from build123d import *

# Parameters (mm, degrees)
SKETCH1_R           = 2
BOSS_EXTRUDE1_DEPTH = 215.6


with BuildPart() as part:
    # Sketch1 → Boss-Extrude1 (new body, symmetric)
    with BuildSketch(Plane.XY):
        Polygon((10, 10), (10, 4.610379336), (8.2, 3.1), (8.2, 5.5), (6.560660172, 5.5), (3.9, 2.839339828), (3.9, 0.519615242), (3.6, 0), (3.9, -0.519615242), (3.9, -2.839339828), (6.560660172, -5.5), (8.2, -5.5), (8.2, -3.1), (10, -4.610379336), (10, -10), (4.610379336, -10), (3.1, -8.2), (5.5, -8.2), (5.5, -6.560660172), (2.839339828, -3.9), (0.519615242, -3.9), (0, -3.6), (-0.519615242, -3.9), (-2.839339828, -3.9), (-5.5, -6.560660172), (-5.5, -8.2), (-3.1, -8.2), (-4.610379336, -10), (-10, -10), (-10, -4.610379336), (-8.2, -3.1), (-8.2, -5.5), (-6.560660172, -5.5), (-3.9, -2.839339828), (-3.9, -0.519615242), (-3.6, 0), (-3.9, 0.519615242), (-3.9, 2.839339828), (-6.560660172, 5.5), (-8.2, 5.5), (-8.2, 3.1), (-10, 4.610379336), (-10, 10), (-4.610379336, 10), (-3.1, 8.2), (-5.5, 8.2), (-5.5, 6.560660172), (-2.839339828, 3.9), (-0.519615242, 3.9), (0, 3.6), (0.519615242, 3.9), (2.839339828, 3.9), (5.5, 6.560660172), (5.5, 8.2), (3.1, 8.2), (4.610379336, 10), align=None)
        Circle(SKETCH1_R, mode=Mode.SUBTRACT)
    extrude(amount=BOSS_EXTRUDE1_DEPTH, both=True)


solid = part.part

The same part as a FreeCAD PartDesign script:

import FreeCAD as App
import Part
import Sketcher

V = App.Vector
Q = App.Units.Quantity

doc = App.newDocument("Part")
body = doc.addObject("PartDesign::Body", "Body")

sketch1 = doc.addObject("Sketcher::SketchObject", "Sketch")
body.addObject(sketch1)
sketch1.AttachmentSupport = (doc.XY_Plane, [""])
sketch1.MapMode = "FlatFace"
sketch1.addGeometry(Part.LineSegment(V(10, 4.6, 0), V(10, 10, 0)), False)
sketch1.addGeometry(Part.LineSegment(V(10, 10, 0), V(4.6, 10, 0)), False)
sketch1.addGeometry(Part.LineSegment(V(4.6, 10, 0), V(3.1, 8.2, 0)), False)
sketch1.addGeometry(Part.LineSegment(V(3.1, 8.2, 0), V(5.5, 8.2, 0)), False)
sketch1.addGeometry(Part.LineSegment(V(5.5, 8.2, 0), V(5.5, 6.6, 0)), False)
sketch1.addGeometry(Part.LineSegment(V(5.5, 6.6, 0), V(2.8, 3.9, 0)), False)
sketch1.addGeometry(Part.LineSegment(V(2.8, 3.9, 0), V(0.5, 3.9, 0)), False)
sketch1.addGeometry(Part.LineSegment(V(0.5, 3.9, 0), V(0, 3.6, 0)), False)
sketch1.addGeometry(Part.LineSegment(V(0, 3.6, 0), V(-0.5, 3.9, 0)), False)
sketch1.addGeometry(Part.LineSegment(V(-0.5, 3.9, 0), V(-2.8, 3.9, 0)), False)
sketch1.addGeometry(Part.LineSegment(V(-2.8, 3.9, 0), V(-5.5, 6.6, 0)), False)
sketch1.addGeometry(Part.LineSegment(V(-5.5, 6.6, 0), V(-5.5, 8.2, 0)), False)
sketch1.addGeometry(Part.LineSegment(V(-5.5, 8.2, 0), V(-3.1, 8.2, 0)), False)
sketch1.addGeometry(Part.LineSegment(V(-3.1, 8.2, 0), V(-4.6, 10, 0)), False)
sketch1.addGeometry(Part.LineSegment(V(-4.6, 10, 0), V(-10, 10, 0)), False)
sketch1.addGeometry(Part.LineSegment(V(-10, 10, 0), V(-10, 4.6, 0)), False)
sketch1.addGeometry(Part.LineSegment(V(-10, 4.6, 0), V(-8.2, 3.1, 0)), False)
sketch1.addGeometry(Part.LineSegment(V(-8.2, 3.1, 0), V(-8.2, 5.5, 0)), False)
sketch1.addGeometry(Part.LineSegment(V(-8.2, 5.5, 0), V(-6.6, 5.5, 0)), False)
sketch1.addGeometry(Part.LineSegment(V(-6.6, 5.5, 0), V(-3.9, 2.8, 0)), False)
sketch1.addGeometry(Part.LineSegment(V(-3.9, 2.8, 0), V(-3.9, 0.5, 0)), False)
sketch1.addGeometry(Part.LineSegment(V(-3.9, 0.5, 0), V(-3.6, 0, 0)), False)
sketch1.addGeometry(Part.LineSegment(V(-3.6, 0, 0), V(-3.9, -0.5, 0)), False)
sketch1.addGeometry(Part.LineSegment(V(-3.9, -0.5, 0), V(-3.9, -2.8, 0)), False)
sketch1.addGeometry(Part.LineSegment(V(-3.9, -2.8, 0), V(-6.6, -5.5, 0)), False)
sketch1.addGeometry(Part.LineSegment(V(-6.6, -5.5, 0), V(-8.2, -5.5, 0)), False)
sketch1.addGeometry(Part.LineSegment(V(-8.2, -5.5, 0), V(-8.2, -3.1, 0)), False)
sketch1.addGeometry(Part.LineSegment(V(-8.2, -3.1, 0), V(-10, -4.6, 0)), False)
sketch1.addGeometry(Part.LineSegment(V(-10, -4.6, 0), V(-10, -10, 0)), False)
sketch1.addGeometry(Part.LineSegment(V(-10, -10, 0), V(-4.6, -10, 0)), False)
sketch1.addGeometry(Part.LineSegment(V(-4.6, -10, 0), V(-3.1, -8.2, 0)), False)
sketch1.addGeometry(Part.LineSegment(V(-3.1, -8.2, 0), V(-5.5, -8.2, 0)), False)
sketch1.addGeometry(Part.LineSegment(V(-5.5, -8.2, 0), V(-5.5, -6.6, 0)), False)
sketch1.addGeometry(Part.LineSegment(V(-5.5, -6.6, 0), V(-2.8, -3.9, 0)), False)
sketch1.addGeometry(Part.LineSegment(V(-2.8, -3.9, 0), V(-0.5, -3.9, 0)), False)
sketch1.addGeometry(Part.LineSegment(V(-0.5, -3.9, 0), V(0, -3.6, 0)), False)
sketch1.addGeometry(Part.LineSegment(V(0, -3.6, 0), V(0.5, -3.9, 0)), False)
sketch1.addGeometry(Part.LineSegment(V(0.5, -3.9, 0), V(2.8, -3.9, 0)), False)
sketch1.addGeometry(Part.LineSegment(V(2.8, -3.9, 0), V(5.5, -6.6, 0)), False)
sketch1.addGeometry(Part.LineSegment(V(5.5, -6.6, 0), V(5.5, -8.2, 0)), False)
sketch1.addGeometry(Part.LineSegment(V(5.5, -8.2, 0), V(3.1, -8.2, 0)), False)
sketch1.addGeometry(Part.LineSegment(V(3.1, -8.2, 0), V(4.6, -10, 0)), False)
sketch1.addGeometry(Part.LineSegment(V(4.6, -10, 0), V(10, -10, 0)), False)
sketch1.addGeometry(Part.LineSegment(V(10, -10, 0), V(10, -4.6, 0)), False)
sketch1.addGeometry(Part.LineSegment(V(10, -4.6, 0), V(8.2, -3.1, 0)), False)
sketch1.addGeometry(Part.LineSegment(V(8.2, -3.1, 0), V(8.2, -5.5, 0)), False)
sketch1.addGeometry(Part.LineSegment(V(8.2, -5.5, 0), V(6.6, -5.5, 0)), False)
sketch1.addGeometry(Part.LineSegment(V(6.6, -5.5, 0), V(3.9, -2.8, 0)), False)
sketch1.addGeometry(Part.LineSegment(V(3.9, -2.8, 0), V(3.9, -0.5, 0)), False)
sketch1.addGeometry(Part.LineSegment(V(3.9, -0.5, 0), V(3.6, 0, 0)), False)
sketch1.addGeometry(Part.LineSegment(V(3.6, 0, 0), V(3.9, 0.5, 0)), False)
sketch1.addGeometry(Part.LineSegment(V(3.9, 0.5, 0), V(3.9, 2.8, 0)), False)
sketch1.addGeometry(Part.LineSegment(V(3.9, 2.8, 0), V(6.6, 5.5, 0)), False)
sketch1.addGeometry(Part.LineSegment(V(6.6, 5.5, 0), V(8.2, 5.5, 0)), False)
sketch1.addGeometry(Part.LineSegment(V(8.2, 5.5, 0), V(8.2, 3.1, 0)), False)
sketch1.addGeometry(Part.LineSegment(V(8.2, 3.1, 0), V(10, 4.6, 0)), False)
sketch1.addGeometry(Part.Circle(V(0, 0, 0), V(0, 0, 1), 2), False)
sketch1.addConstraint(Sketcher.Constraint("Coincident", 0, 2, 1, 1))
sketch1.addConstraint(Sketcher.Constraint("Coincident", 1, 2, 2, 1))
sketch1.addConstraint(Sketcher.Constraint("Coincident", 2, 2, 3, 1))
sketch1.addConstraint(Sketcher.Constraint("Coincident", 3, 2, 4, 1))
sketch1.addConstraint(Sketcher.Constraint("Coincident", 4, 2, 5, 1))
sketch1.addConstraint(Sketcher.Constraint("Coincident", 5, 2, 6, 1))
sketch1.addConstraint(Sketcher.Constraint("Coincident", 6, 2, 7, 1))
sketch1.addConstraint(Sketcher.Constraint("Coincident", 7, 2, 8, 1))
sketch1.addConstraint(Sketcher.Constraint("Coincident", 8, 2, 9, 1))
sketch1.addConstraint(Sketcher.Constraint("Coincident", 9, 2, 10, 1))
sketch1.addConstraint(Sketcher.Constraint("Coincident", 10, 2, 11, 1))
sketch1.addConstraint(Sketcher.Constraint("Coincident", 11, 2, 12, 1))
sketch1.addConstraint(Sketcher.Constraint("Coincident", 12, 2, 13, 1))
sketch1.addConstraint(Sketcher.Constraint("Coincident", 13, 2, 14, 1))
sketch1.addConstraint(Sketcher.Constraint("Coincident", 14, 2, 15, 1))
sketch1.addConstraint(Sketcher.Constraint("Coincident", 15, 2, 16, 1))
sketch1.addConstraint(Sketcher.Constraint("Coincident", 16, 2, 17, 1))
sketch1.addConstraint(Sketcher.Constraint("Coincident", 17, 2, 18, 1))
sketch1.addConstraint(Sketcher.Constraint("Coincident", 18, 2, 19, 1))
sketch1.addConstraint(Sketcher.Constraint("Coincident", 19, 2, 20, 1))
sketch1.addConstraint(Sketcher.Constraint("Coincident", 20, 2, 21, 1))
sketch1.addConstraint(Sketcher.Constraint("Coincident", 21, 2, 22, 1))
sketch1.addConstraint(Sketcher.Constraint("Coincident", 22, 2, 23, 1))
sketch1.addConstraint(Sketcher.Constraint("Coincident", 23, 2, 24, 1))
sketch1.addConstraint(Sketcher.Constraint("Coincident", 24, 2, 25, 1))
sketch1.addConstraint(Sketcher.Constraint("Coincident", 25, 2, 26, 1))
sketch1.addConstraint(Sketcher.Constraint("Coincident", 26, 2, 27, 1))
sketch1.addConstraint(Sketcher.Constraint("Coincident", 27, 2, 28, 1))
sketch1.addConstraint(Sketcher.Constraint("Coincident", 28, 2, 29, 1))
sketch1.addConstraint(Sketcher.Constraint("Coincident", 29, 2, 30, 1))
sketch1.addConstraint(Sketcher.Constraint("Coincident", 30, 2, 31, 1))
sketch1.addConstraint(Sketcher.Constraint("Coincident", 31, 2, 32, 1))
sketch1.addConstraint(Sketcher.Constraint("Coincident", 32, 2, 33, 1))
sketch1.addConstraint(Sketcher.Constraint("Coincident", 33, 2, 34, 1))
sketch1.addConstraint(Sketcher.Constraint("Coincident", 34, 2, 35, 1))
sketch1.addConstraint(Sketcher.Constraint("Coincident", 35, 2, 36, 1))
sketch1.addConstraint(Sketcher.Constraint("Coincident", 36, 2, 37, 1))
sketch1.addConstraint(Sketcher.Constraint("Coincident", 37, 2, 38, 1))
sketch1.addConstraint(Sketcher.Constraint("Coincident", 38, 2, 39, 1))
sketch1.addConstraint(Sketcher.Constraint("Coincident", 39, 2, 40, 1))
sketch1.addConstraint(Sketcher.Constraint("Coincident", 40, 2, 41, 1))
sketch1.addConstraint(Sketcher.Constraint("Coincident", 41, 2, 42, 1))
sketch1.addConstraint(Sketcher.Constraint("Coincident", 42, 2, 43, 1))
sketch1.addConstraint(Sketcher.Constraint("Coincident", 43, 2, 44, 1))
sketch1.addConstraint(Sketcher.Constraint("Coincident", 44, 2, 45, 1))
sketch1.addConstraint(Sketcher.Constraint("Coincident", 45, 2, 46, 1))
sketch1.addConstraint(Sketcher.Constraint("Coincident", 46, 2, 47, 1))
sketch1.addConstraint(Sketcher.Constraint("Coincident", 47, 2, 48, 1))
sketch1.addConstraint(Sketcher.Constraint("Coincident", 48, 2, 49, 1))
sketch1.addConstraint(Sketcher.Constraint("Coincident", 49, 2, 50, 1))
sketch1.addConstraint(Sketcher.Constraint("Coincident", 50, 2, 51, 1))
sketch1.addConstraint(Sketcher.Constraint("Coincident", 51, 2, 52, 1))
sketch1.addConstraint(Sketcher.Constraint("Coincident", 52, 2, 53, 1))
sketch1.addConstraint(Sketcher.Constraint("Coincident", 53, 2, 54, 1))
sketch1.addConstraint(Sketcher.Constraint("Coincident", 54, 2, 55, 1))
sketch1.addConstraint(Sketcher.Constraint("Coincident", 55, 2, 0, 1))
sketch1.addConstraint(Sketcher.Constraint("Vertical", 0))
sketch1.addConstraint(Sketcher.Constraint("Horizontal", 1))
sketch1.addConstraint(Sketcher.Constraint("Horizontal", 3))
sketch1.addConstraint(Sketcher.Constraint("Vertical", 4))
sketch1.addConstraint(Sketcher.Constraint("Horizontal", 6))
sketch1.addConstraint(Sketcher.Constraint("Horizontal", 9))
sketch1.addConstraint(Sketcher.Constraint("Vertical", 11))
sketch1.addConstraint(Sketcher.Constraint("Horizontal", 12))
sketch1.addConstraint(Sketcher.Constraint("Horizontal", 14))
sketch1.addConstraint(Sketcher.Constraint("Vertical", 15))
sketch1.addConstraint(Sketcher.Constraint("Vertical", 17))
sketch1.addConstraint(Sketcher.Constraint("Horizontal", 18))
sketch1.addConstraint(Sketcher.Constraint("Vertical", 20))
sketch1.addConstraint(Sketcher.Constraint("Vertical", 23))
sketch1.addConstraint(Sketcher.Constraint("Horizontal", 25))
sketch1.addConstraint(Sketcher.Constraint("Vertical", 26))
sketch1.addConstraint(Sketcher.Constraint("Vertical", 28))
sketch1.addConstraint(Sketcher.Constraint("Horizontal", 29))
sketch1.addConstraint(Sketcher.Constraint("Horizontal", 31))
sketch1.addConstraint(Sketcher.Constraint("Vertical", 32))
sketch1.addConstraint(Sketcher.Constraint("Horizontal", 34))
sketch1.addConstraint(Sketcher.Constraint("Horizontal", 37))
sketch1.addConstraint(Sketcher.Constraint("Vertical", 39))
sketch1.addConstraint(Sketcher.Constraint("Horizontal", 40))
sketch1.addConstraint(Sketcher.Constraint("Horizontal", 42))
sketch1.addConstraint(Sketcher.Constraint("Vertical", 43))
sketch1.addConstraint(Sketcher.Constraint("Vertical", 45))
sketch1.addConstraint(Sketcher.Constraint("Horizontal", 46))
sketch1.addConstraint(Sketcher.Constraint("Vertical", 48))
sketch1.addConstraint(Sketcher.Constraint("Vertical", 51))
sketch1.addConstraint(Sketcher.Constraint("Horizontal", 53))
sketch1.addConstraint(Sketcher.Constraint("Vertical", 54))
sketch1.addConstraint(Sketcher.Constraint("Coincident", 56, 3, -1, 1))
sketch1.addConstraint(Sketcher.Constraint("Symmetric", 0, 2, 28, 2, -1, 1))
sketch1.addConstraint(Sketcher.Constraint("Symmetric", 2, 2, 30, 2, -1, 1))
sketch1.addConstraint(Sketcher.Constraint("Symmetric", 4, 2, 32, 2, -1, 1))
sketch1.addConstraint(Sketcher.Constraint("Symmetric", 5, 2, 33, 2, -1, 1))
sketch1.addConstraint(Sketcher.Constraint("Symmetric", 7, 2, 35, 2, -1, 1))
sketch1.addConstraint(Sketcher.Constraint("Symmetric", 8, 2, 36, 2, -1, 1))
sketch1.addConstraint(Sketcher.Constraint("Symmetric", 10, 2, 38, 2, -1, 1))
sketch1.addConstraint(Sketcher.Constraint("Symmetric", 12, 2, 40, 2, -1, 1))
sketch1.addConstraint(Sketcher.Constraint("Symmetric", 13, 2, 41, 2, -1, 1))
sketch1.addConstraint(Sketcher.Constraint("Symmetric", 15, 2, 43, 2, -1, 1))
sketch1.addConstraint(Sketcher.Constraint("Symmetric", 16, 2, 44, 2, -1, 1))
sketch1.addConstraint(Sketcher.Constraint("Symmetric", 18, 2, 46, 2, -1, 1))
sketch1.addConstraint(Sketcher.Constraint("Symmetric", 19, 2, 47, 2, -1, 1))
sketch1.addConstraint(Sketcher.Constraint("Symmetric", 21, 2, 49, 2, -1, 1))
sketch1.addConstraint(Sketcher.Constraint("Symmetric", 22, 2, 50, 2, -1, 1))
sketch1.addConstraint(Sketcher.Constraint("Symmetric", 24, 2, 52, 2, -1, 1))
sketch1.addConstraint(Sketcher.Constraint("Symmetric", 26, 2, 54, 2, -1, 1))
sketch1.addConstraint(Sketcher.Constraint("Symmetric", 6, 2, 8, 2, -2))
sketch1.addConstraint(Sketcher.Constraint("Symmetric", 4, 2, 10, 2, -2))
sketch1.addConstraint(Sketcher.Constraint("Symmetric", 2, 2, 12, 2, -2))
sketch1.addConstraint(Sketcher.Constraint("Symmetric", 1, 2, 13, 2, -2))
sketch1.addConstraint(Sketcher.Constraint("Symmetric", 27, 2, 43, 2, -2))
sketch1.addConstraint(Sketcher.Constraint("Symmetric", 26, 2, 44, 2, -2))
sketch1.addConstraint(Sketcher.Constraint("Symmetric", 24, 2, 46, 2, -2))
sketch1.addConstraint(Sketcher.Constraint("Symmetric", 23, 2, 47, 2, -2))
sketch1.addConstraint(Sketcher.Constraint("PointOnObject", 7, 2, -2))
sketch1.addConstraint(Sketcher.Constraint("PointOnObject", 21, 2, -1))
sketch1.addConstraint(Sketcher.Constraint("Perpendicular", 5, 10))
sketch1.addConstraint(Sketcher.Constraint("Perpendicular", 2, 16))
sketch1.addConstraint(Sketcher.Constraint("Parallel", 10, 19))
sketch1.addConstraint(Sketcher.Constraint("Perpendicular", 7, 21))
sketch1.addConstraint(Sketcher.Constraint("Perpendicular", 8, 22))
sketch1.addConstraint(Sketcher.Constraint("Perpendicular", 19, 24))
sketch1.addConstraint(Sketcher.Constraint("Perpendicular", 16, 30))
sketch1.addConstraint(Sketcher.Constraint("Perpendicular", 21, 35))
sketch1.addConstraint(Sketcher.Constraint("Perpendicular", 33, 38))
sketch1.addConstraint(Sketcher.Constraint("Perpendicular", 35, 49))
sketch1.addConstraint(Sketcher.Constraint("Perpendicular", 47, 52))
sketch1.addConstraint(Sketcher.Constraint("Perpendicular", 41, 55))
sketch1.addConstraint(Sketcher.Constraint("Equal", 42, 0))
sketch1.addConstraint(Sketcher.Constraint("Equal", 53, 4))
sketch1.addConstraint(Sketcher.Constraint("Equal", 40, 17))
sketch1.addConstraint(Sketcher.Constraint("Equal", 37, 20))
sketch1.addConstraint(Sketcher.Constraint("Equal", 13, 16))
sketch1.addConstraint(Sketcher.Constraint("Equal", 10, 19))
sketch1.addConstraint(Sketcher.Constraint("Equal", 8, 21))
sketch1.addConstraint(Sketcher.Constraint("Diameter", 56, 4.0))
sketch1.addConstraint(Sketcher.Constraint("Angle", 2, Q("-130 deg")))
sketch1.addConstraint(Sketcher.Constraint("Angle", 7, Q("-150 deg")))
sketch1.addConstraint(Sketcher.Constraint("DistanceX", 3, 1, 3, 2, 2.4))
sketch1.addConstraint(Sketcher.Constraint("DistanceX", -1, 1, 0, 2, 10.0))
sketch1.addConstraint(Sketcher.Constraint("Distance", 7, 0.6))
sketch1.addConstraint(Sketcher.Constraint("DistanceX", -1, 1, 2, 2, 3.1))
sketch1.addConstraint(Sketcher.Constraint("DistanceY", -1, 1, 2, 2, 8.2))
sketch1.addConstraint(Sketcher.Constraint("DistanceY", -1, 1, 5, 2, 3.9))
sketch1.addConstraint(Sketcher.Constraint("DistanceX", 18, 1, 18, 2, 1.63934))
pad1 = doc.addObject("PartDesign::Pad", "Pad")
body.addObject(pad1)
pad1.Profile = sketch1
pad1.Length = 431.2
pad1.Midplane = True

doc.recompute()
